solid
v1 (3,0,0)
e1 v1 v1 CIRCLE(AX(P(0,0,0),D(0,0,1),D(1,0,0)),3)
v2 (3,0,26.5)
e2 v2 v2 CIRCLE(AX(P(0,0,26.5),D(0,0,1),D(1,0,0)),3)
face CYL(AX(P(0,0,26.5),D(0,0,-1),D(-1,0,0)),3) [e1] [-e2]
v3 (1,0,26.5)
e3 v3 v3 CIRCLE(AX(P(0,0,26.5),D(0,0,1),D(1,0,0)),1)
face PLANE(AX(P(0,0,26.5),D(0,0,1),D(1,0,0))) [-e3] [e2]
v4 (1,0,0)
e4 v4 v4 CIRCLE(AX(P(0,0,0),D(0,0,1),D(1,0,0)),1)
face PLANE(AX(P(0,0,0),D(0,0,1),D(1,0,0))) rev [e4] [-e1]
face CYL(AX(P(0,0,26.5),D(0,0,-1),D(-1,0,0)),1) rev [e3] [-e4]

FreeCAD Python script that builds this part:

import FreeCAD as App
import Part
import Sketcher
from FreeCAD import Vector

doc = App.newDocument("Part")
params = doc.addObject("Spreadsheet::Sheet", "Params")
for row, (alias, value) in enumerate([
    ("sketch1_diameter", "6 mm"),
    ("sketch1_diameter2", "2 mm"),
    ("pad1_length", "26.5 mm"),
], start=1):
    params.set(f"A{row}", alias)
    params.set(f"B{row}", "=" + value)
    params.setAlias(f"B{row}", alias)

body = doc.addObject("PartDesign::Body", "Body")

sketch1 = body.newObject("Sketcher::SketchObject", "Sketch")
sketch1.AttachmentSupport = (doc.getObject("XY_Plane"), [""])
sketch1.MapMode = "FlatFace"
sketch1.addGeometry([
    Part.Circle(Vector(0, 0, 0), Vector(0, 0, 1), 3),
    Part.Circle(Vector(0, 0, 0), Vector(0, 0, 1), 1),
], False)
sketch1.addConstraint([
    Sketcher.Constraint("Coincident", 0, 3, -1, 1),
    Sketcher.Constraint("Coincident", 1, 3, -1, 1),
    Sketcher.Constraint("Diameter", 0, 6.0),
    Sketcher.Constraint("Diameter", 1, 2.0),
])
sketch1.setExpression("Constraints[2]", "Params.sketch1_diameter")
sketch1.setExpression("Constraints[3]", "Params.sketch1_diameter2")
pad1 = body.newObject("PartDesign::Pad", "Pad")
pad1.Profile = sketch1
pad1.setExpression("Length", "Params.pad1_length")

doc.recompute()
